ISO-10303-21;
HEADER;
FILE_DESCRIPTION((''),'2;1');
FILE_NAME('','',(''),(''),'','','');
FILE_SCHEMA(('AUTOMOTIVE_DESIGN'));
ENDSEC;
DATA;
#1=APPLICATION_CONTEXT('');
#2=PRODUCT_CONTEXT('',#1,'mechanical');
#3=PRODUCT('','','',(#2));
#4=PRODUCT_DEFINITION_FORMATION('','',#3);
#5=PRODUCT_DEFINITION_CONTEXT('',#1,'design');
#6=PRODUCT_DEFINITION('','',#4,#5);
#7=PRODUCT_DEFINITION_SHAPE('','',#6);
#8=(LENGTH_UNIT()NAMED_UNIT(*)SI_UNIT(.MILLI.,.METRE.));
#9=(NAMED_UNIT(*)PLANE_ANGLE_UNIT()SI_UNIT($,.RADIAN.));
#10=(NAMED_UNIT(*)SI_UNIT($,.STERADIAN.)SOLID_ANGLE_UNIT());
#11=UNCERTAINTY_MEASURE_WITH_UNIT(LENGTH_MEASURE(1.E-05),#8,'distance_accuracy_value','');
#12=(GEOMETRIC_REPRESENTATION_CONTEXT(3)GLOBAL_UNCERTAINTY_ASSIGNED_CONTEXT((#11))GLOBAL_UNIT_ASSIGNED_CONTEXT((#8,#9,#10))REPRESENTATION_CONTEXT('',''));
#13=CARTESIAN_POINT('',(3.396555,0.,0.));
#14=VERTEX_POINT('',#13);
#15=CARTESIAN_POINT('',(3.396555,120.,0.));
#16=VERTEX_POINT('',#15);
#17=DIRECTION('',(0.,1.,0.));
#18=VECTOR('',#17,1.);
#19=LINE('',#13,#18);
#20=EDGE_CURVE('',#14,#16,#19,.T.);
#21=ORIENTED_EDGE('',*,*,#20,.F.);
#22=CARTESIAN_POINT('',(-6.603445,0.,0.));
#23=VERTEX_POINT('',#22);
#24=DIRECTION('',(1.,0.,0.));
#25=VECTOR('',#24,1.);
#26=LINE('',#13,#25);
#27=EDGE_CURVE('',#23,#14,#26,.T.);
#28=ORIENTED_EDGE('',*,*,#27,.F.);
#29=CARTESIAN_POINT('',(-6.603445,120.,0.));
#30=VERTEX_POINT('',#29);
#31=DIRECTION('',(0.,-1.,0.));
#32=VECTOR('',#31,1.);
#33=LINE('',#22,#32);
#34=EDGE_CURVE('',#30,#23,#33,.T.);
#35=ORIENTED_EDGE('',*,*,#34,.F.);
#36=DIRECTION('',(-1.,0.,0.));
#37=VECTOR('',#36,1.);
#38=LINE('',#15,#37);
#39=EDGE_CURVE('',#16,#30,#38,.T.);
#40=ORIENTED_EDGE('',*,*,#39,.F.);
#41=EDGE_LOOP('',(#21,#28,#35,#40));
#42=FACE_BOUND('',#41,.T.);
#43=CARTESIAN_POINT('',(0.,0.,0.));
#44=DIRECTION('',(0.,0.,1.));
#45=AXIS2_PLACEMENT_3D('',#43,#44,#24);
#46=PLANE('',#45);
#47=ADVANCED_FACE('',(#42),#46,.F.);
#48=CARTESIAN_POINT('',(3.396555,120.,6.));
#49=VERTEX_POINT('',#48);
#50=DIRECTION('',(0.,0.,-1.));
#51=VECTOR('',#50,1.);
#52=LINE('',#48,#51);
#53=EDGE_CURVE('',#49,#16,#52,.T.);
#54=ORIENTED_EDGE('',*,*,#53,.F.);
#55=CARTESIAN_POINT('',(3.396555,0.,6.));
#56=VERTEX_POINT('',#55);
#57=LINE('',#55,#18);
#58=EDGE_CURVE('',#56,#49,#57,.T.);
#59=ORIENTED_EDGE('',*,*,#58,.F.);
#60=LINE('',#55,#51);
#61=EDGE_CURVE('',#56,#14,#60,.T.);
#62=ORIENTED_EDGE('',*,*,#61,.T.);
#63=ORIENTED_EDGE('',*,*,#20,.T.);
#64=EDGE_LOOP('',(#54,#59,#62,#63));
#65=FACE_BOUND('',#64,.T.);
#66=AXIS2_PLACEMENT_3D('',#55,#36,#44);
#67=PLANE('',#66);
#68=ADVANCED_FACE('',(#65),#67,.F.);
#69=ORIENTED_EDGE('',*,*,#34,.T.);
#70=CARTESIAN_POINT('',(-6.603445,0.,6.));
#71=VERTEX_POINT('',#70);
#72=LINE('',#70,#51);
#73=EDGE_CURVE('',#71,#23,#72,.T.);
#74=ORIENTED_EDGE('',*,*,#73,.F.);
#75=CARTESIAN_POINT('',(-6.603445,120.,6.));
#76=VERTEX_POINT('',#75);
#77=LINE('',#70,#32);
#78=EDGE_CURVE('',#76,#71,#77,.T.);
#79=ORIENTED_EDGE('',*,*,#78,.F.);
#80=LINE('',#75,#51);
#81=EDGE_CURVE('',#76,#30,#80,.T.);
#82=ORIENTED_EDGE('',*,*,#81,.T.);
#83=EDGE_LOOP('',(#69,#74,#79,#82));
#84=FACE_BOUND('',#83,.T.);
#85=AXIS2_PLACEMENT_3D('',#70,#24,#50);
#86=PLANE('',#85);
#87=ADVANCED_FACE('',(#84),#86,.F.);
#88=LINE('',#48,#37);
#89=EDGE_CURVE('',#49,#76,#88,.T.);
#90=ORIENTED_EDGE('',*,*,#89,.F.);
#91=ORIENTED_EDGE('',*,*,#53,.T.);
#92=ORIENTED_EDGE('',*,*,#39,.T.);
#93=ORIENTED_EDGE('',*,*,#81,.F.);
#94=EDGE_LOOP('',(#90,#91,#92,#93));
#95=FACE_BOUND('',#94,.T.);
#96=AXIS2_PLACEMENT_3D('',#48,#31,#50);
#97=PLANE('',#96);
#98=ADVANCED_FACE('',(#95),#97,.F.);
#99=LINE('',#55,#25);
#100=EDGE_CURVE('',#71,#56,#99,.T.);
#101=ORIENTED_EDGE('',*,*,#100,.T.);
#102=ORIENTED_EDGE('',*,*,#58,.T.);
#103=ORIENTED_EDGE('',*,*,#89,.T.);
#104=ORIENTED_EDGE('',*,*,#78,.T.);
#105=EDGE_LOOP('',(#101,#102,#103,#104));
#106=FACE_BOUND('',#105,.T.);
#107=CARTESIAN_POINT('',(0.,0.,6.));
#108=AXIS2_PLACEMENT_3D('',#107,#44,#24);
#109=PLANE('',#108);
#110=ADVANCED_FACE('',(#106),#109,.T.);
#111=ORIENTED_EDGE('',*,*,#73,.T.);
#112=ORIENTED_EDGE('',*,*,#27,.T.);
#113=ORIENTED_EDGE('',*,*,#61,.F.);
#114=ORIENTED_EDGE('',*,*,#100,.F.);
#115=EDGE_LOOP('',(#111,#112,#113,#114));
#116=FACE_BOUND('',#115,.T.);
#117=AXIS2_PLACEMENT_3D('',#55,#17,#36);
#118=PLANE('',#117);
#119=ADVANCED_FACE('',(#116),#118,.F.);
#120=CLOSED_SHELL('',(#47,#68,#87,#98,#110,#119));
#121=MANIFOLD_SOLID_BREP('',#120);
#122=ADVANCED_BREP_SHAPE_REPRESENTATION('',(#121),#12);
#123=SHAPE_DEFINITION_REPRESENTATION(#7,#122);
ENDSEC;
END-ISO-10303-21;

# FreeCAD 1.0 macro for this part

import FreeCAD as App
import Part
import Sketcher
from FreeCAD import Vector

doc = App.newDocument("Part")
body = doc.addObject("PartDesign::Body", "Body")

sketch1 = body.newObject("Sketcher::SketchObject", "Sketch")
sketch1.AttachmentSupport = (doc.getObject("XY_Plane"), [""])
sketch1.MapMode = "FlatFace"
sketch1.addGeometry([
    Part.LineSegment(Vector(-7, 120, 0), Vector(-7, 0, 0)),
    Part.LineSegment(Vector(-7, 0, 0), Vector(3, 0, 0)),
    Part.LineSegment(Vector(3, 0, 0), Vector(3, 120, 0)),
    Part.LineSegment(Vector(3, 120, 0), Vector(-7, 120, 0)),
], False)
sketch1.addConstraint([
    Sketcher.Constraint("Coincident", 0, 2, 1, 1),
    Sketcher.Constraint("Coincident", 1, 2, 2, 1),
    Sketcher.Constraint("Coincident", 2, 2, 3, 1),
    Sketcher.Constraint("Coincident", 3, 2, 0, 1),
    Sketcher.Constraint("Vertical", 0),
    Sketcher.Constraint("Horizontal", 1),
    Sketcher.Constraint("Vertical", 2),
    Sketcher.Constraint("Horizontal", 3),
    Sketcher.Constraint("PointOnObject", 0, 2, -1),
    Sketcher.Constraint("DistanceX", 1, 1, 1, 2, 10.0),
    Sketcher.Constraint("DistanceY", 0, 2, 0, 1, 120.0),
    Sketcher.Constraint("DistanceX", 0, 2, -1, 1, 6.603445),
])
pad1 = body.newObject("PartDesign::Pad", "Pad")
pad1.Profile = sketch1
pad1.Length = 6

doc.recompute()
